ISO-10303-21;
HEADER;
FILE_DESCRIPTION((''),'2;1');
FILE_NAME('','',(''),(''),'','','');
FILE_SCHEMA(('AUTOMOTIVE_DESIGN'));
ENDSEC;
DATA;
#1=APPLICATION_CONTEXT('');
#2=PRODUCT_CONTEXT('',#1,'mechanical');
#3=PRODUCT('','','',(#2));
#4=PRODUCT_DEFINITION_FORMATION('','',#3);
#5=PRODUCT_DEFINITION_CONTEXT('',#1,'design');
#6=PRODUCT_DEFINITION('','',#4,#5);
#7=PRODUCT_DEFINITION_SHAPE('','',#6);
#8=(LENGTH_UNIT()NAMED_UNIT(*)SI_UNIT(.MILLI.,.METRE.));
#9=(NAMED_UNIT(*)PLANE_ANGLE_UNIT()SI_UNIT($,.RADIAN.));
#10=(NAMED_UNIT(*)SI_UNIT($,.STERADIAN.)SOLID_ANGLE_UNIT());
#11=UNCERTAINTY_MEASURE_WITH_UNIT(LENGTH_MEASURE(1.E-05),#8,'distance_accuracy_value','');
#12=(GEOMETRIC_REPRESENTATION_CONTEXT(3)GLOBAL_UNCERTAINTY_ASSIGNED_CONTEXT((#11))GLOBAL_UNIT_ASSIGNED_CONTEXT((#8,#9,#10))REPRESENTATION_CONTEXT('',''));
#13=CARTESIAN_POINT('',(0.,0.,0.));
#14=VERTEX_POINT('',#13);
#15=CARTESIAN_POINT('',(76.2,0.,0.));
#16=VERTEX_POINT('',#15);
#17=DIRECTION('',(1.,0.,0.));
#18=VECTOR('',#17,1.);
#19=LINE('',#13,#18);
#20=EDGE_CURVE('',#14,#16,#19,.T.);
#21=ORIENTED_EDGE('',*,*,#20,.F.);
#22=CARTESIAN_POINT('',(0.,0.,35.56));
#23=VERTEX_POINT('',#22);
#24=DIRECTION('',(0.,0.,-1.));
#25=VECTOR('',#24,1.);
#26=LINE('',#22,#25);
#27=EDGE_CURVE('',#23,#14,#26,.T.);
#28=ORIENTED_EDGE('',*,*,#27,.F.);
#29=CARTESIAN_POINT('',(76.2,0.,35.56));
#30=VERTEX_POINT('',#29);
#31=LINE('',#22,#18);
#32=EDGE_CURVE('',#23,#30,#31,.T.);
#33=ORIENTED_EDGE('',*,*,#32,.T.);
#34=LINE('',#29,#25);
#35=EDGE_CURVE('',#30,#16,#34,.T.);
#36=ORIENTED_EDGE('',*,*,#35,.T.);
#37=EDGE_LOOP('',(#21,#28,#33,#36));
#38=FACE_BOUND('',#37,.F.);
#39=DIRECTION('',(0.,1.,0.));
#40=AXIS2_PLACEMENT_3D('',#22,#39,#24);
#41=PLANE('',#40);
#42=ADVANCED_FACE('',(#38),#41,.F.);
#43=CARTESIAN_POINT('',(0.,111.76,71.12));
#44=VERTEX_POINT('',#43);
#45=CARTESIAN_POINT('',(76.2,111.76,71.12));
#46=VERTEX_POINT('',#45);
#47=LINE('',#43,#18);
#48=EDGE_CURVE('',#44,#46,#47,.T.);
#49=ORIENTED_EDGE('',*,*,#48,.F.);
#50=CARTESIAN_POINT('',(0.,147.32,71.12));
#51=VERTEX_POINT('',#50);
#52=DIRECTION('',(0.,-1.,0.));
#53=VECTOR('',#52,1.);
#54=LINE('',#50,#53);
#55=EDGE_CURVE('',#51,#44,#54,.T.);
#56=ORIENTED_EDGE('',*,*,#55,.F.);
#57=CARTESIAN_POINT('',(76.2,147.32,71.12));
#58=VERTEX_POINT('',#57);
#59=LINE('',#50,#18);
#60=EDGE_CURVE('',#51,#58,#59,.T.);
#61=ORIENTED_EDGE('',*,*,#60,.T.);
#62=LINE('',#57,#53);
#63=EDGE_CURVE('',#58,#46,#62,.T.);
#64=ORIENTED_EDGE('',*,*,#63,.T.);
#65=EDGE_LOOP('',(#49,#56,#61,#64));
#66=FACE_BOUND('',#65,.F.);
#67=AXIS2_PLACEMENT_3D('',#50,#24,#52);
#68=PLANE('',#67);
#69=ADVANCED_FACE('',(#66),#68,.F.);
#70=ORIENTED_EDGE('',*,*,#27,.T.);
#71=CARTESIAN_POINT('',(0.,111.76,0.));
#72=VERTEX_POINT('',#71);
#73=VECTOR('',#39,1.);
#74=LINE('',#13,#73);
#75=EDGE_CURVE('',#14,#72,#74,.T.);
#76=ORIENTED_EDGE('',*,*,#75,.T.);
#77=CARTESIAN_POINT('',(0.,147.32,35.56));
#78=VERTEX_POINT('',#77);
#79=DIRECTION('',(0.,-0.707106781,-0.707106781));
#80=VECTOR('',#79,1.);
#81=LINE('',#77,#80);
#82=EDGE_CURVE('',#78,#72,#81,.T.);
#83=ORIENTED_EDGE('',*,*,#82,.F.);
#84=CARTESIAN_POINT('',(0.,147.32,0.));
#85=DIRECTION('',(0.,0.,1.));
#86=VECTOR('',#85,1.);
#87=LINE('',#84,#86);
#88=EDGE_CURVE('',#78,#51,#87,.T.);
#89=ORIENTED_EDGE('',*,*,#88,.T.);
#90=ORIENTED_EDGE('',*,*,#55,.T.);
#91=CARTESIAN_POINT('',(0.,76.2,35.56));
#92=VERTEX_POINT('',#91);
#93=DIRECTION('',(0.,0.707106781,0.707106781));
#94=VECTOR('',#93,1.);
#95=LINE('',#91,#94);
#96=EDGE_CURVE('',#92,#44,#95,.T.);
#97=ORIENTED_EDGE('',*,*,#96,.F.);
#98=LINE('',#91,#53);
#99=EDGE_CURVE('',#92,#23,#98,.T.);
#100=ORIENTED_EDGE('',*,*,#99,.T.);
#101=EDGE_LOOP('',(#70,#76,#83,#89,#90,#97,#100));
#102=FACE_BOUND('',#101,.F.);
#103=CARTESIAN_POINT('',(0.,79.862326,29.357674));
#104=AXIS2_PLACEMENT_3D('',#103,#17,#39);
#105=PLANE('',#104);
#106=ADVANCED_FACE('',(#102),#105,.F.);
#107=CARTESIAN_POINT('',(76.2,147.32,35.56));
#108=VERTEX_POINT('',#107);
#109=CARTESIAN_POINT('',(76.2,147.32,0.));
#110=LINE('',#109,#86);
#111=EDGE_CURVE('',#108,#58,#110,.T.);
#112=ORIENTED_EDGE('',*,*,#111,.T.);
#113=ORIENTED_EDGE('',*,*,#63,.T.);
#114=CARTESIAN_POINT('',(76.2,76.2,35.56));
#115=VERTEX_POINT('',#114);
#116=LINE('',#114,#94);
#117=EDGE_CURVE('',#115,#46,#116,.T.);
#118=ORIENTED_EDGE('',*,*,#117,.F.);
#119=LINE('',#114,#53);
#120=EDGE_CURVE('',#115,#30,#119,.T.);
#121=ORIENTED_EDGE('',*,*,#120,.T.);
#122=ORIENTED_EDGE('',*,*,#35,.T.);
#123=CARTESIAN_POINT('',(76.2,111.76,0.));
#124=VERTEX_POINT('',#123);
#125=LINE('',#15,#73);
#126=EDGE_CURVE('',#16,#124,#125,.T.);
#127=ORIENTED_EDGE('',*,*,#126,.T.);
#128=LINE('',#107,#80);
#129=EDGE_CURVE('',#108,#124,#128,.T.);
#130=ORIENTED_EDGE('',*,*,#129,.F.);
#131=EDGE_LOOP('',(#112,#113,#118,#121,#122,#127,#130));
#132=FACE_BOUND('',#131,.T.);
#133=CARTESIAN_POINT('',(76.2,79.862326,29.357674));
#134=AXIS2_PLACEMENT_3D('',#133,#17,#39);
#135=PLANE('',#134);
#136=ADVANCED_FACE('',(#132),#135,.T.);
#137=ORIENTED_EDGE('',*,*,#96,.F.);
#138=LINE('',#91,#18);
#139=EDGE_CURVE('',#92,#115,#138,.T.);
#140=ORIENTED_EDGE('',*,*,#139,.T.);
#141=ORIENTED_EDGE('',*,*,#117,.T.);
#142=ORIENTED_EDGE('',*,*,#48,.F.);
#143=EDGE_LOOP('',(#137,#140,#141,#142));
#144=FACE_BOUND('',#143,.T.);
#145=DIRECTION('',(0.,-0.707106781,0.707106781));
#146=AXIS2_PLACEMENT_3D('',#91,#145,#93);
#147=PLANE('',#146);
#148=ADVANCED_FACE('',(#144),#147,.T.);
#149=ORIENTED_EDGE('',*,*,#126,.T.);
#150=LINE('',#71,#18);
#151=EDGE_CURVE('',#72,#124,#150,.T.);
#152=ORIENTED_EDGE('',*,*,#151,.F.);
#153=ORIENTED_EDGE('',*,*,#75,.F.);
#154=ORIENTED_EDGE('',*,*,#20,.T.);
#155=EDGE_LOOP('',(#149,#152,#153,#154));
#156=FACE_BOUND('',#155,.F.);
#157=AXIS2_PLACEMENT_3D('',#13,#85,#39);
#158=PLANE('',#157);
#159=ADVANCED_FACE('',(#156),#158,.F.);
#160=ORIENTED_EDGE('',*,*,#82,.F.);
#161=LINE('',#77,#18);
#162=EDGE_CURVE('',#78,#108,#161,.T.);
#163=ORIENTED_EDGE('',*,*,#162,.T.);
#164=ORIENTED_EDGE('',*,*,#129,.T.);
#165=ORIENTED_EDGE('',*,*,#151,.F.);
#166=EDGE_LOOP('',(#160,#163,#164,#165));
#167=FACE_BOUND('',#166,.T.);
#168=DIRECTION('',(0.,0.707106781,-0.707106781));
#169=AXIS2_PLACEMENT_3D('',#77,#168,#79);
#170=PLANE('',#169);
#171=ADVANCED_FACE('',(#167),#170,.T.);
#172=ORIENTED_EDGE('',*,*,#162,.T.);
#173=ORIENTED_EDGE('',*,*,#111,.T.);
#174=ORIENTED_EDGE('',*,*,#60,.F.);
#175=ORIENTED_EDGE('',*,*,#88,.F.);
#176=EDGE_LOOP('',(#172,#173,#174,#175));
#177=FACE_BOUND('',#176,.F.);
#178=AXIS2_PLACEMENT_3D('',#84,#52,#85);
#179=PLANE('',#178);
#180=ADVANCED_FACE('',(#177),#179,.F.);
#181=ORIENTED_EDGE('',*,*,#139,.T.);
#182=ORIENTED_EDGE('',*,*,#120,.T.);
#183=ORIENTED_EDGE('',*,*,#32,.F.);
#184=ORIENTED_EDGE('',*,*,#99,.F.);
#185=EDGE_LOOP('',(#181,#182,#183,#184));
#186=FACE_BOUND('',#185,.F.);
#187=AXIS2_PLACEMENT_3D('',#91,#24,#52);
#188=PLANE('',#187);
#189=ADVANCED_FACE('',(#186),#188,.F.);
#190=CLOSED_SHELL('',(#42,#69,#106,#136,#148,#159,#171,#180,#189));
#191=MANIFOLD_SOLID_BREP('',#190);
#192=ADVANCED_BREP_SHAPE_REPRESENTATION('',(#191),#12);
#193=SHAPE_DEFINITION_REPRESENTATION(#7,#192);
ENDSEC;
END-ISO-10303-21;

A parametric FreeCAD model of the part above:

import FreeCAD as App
import Part
import Sketcher
from FreeCAD import Vector
Q = App.Units.Quantity

doc = App.newDocument("Part")
body = doc.addObject("PartDesign::Body", "Body")

sketch1 = body.newObject("Sketcher::SketchObject", "Sketch")
sketch1.AttachmentSupport = (doc.getObject("YZ_Plane"), [""])
sketch1.MapMode = "FlatFace"
sketch1.addGeometry([
    Part.LineSegment(Vector(0, 35.56, 0), Vector(0, 0, 0)),
    Part.LineSegment(Vector(0, 0, 0), Vector(147.32, 0, 0)),
    Part.LineSegment(Vector(147.32, 0, 0), Vector(147.32, 71.12, 0)),
    Part.LineSegment(Vector(147.32, 71.12, 0), Vector(76.2, 71.12, 0)),
    Part.LineSegment(Vector(76.2, 71.12, 0), Vector(76.2, 35.56, 0)),
    Part.LineSegment(Vector(76.2, 35.56, 0), Vector(0, 35.56, 0)),
], False)
sketch1.addConstraint([
    Sketcher.Constraint("Coincident", 0, 2, 1, 1),
    Sketcher.Constraint("Coincident", 1, 2, 2, 1),
    Sketcher.Constraint("Coincident", 2, 2, 3, 1),
    Sketcher.Constraint("Coincident", 3, 2, 4, 1),
    Sketcher.Constraint("Coincident", 4, 2, 5, 1),
    Sketcher.Constraint("Coincident", 5, 2, 0, 1),
    Sketcher.Constraint("Vertical", 0),
    Sketcher.Constraint("Horizontal", 1),
    Sketcher.Constraint("Vertical", 2),
    Sketcher.Constraint("Horizontal", 3),
    Sketcher.Constraint("Vertical", 4),
    Sketcher.Constraint("Horizontal", 5),
    Sketcher.Constraint("Coincident", 0, 2, -1, 1),
    Sketcher.Constraint("Equal", 3, 2),
    Sketcher.Constraint("Equal", 0, 4),
    Sketcher.Constraint("DistanceX", 5, 2, 5, 1, Q("3 in")),
    Sketcher.Constraint("DistanceX", 1, 1, 1, 2, Q("5.8 in")),
])
pad1 = body.newObject("PartDesign::Pad", "Pad")
pad1.Profile = sketch1
pad1.Length = Q("3 in")

sketch2 = body.newObject("Sketcher::SketchObject", "Sketch001")
sketch2.AttachmentSupport = (doc.getObject("YZ_Plane"), [""])
sketch2.MapMode = "FlatFace"
sketch2.addGeometry([
    Part.LineSegment(Vector(147.32, 35.56, 0), Vector(111.76, 0, 0)),
    Part.LineSegment(Vector(111.76, 0, 0), Vector(147.32, 0, 0)),
    Part.LineSegment(Vector(147.32, 0, 0), Vector(147.32, 35.56, 0)),
    Part.LineSegment(Vector(76.2, 71.12, 0), Vector(76.2, 35.56, 0)),
    Part.LineSegment(Vector(76.2, 35.56, 0), Vector(111.76, 71.12, 0)),
    Part.LineSegment(Vector(111.76, 71.12, 0), Vector(76.2, 71.12, 0)),
], False)
sketch2.addConstraint([
    Sketcher.Constraint("Coincident", 0, 2, 1, 1),
    Sketcher.Constraint("Coincident", 1, 2, 2, 1),
    Sketcher.Constraint("Coincident", 2, 2, 0, 1),
    Sketcher.Constraint("Coincident", 3, 2, 4, 1),
    Sketcher.Constraint("Coincident", 4, 2, 5, 1),
    Sketcher.Constraint("Coincident", 5, 2, 3, 1),
    Sketcher.Constraint("Horizontal", 1),
    Sketcher.Constraint("Vertical", 2),
    Sketcher.Constraint("Vertical", 3),
    Sketcher.Constraint("Horizontal", 5),
    Sketcher.Constraint("PointOnObject", 0, 2, -1),
    Sketcher.Constraint("Parallel", 0, 4),
    Sketcher.Constraint("Horizontal", 2, 2, 3, 2),
    Sketcher.Constraint("Vertical", 0, 2, 4, 2),
    Sketcher.Constraint("Equal", 1, 5),
    Sketcher.Constraint("Equal", 5, 2),
    Sketcher.Constraint("DistanceX", 1, 1, 1, 2, Q("1.4 in")),
    Sketcher.Constraint("DistanceX", -1, 1, 3, 2, Q("3 in")),
])
pocket1 = body.newObject("PartDesign::Pocket", "Pocket")
pocket1.Profile = sketch2
pocket1.Length = Q("3 in")
pocket1.Reversed = True

doc.recompute()
